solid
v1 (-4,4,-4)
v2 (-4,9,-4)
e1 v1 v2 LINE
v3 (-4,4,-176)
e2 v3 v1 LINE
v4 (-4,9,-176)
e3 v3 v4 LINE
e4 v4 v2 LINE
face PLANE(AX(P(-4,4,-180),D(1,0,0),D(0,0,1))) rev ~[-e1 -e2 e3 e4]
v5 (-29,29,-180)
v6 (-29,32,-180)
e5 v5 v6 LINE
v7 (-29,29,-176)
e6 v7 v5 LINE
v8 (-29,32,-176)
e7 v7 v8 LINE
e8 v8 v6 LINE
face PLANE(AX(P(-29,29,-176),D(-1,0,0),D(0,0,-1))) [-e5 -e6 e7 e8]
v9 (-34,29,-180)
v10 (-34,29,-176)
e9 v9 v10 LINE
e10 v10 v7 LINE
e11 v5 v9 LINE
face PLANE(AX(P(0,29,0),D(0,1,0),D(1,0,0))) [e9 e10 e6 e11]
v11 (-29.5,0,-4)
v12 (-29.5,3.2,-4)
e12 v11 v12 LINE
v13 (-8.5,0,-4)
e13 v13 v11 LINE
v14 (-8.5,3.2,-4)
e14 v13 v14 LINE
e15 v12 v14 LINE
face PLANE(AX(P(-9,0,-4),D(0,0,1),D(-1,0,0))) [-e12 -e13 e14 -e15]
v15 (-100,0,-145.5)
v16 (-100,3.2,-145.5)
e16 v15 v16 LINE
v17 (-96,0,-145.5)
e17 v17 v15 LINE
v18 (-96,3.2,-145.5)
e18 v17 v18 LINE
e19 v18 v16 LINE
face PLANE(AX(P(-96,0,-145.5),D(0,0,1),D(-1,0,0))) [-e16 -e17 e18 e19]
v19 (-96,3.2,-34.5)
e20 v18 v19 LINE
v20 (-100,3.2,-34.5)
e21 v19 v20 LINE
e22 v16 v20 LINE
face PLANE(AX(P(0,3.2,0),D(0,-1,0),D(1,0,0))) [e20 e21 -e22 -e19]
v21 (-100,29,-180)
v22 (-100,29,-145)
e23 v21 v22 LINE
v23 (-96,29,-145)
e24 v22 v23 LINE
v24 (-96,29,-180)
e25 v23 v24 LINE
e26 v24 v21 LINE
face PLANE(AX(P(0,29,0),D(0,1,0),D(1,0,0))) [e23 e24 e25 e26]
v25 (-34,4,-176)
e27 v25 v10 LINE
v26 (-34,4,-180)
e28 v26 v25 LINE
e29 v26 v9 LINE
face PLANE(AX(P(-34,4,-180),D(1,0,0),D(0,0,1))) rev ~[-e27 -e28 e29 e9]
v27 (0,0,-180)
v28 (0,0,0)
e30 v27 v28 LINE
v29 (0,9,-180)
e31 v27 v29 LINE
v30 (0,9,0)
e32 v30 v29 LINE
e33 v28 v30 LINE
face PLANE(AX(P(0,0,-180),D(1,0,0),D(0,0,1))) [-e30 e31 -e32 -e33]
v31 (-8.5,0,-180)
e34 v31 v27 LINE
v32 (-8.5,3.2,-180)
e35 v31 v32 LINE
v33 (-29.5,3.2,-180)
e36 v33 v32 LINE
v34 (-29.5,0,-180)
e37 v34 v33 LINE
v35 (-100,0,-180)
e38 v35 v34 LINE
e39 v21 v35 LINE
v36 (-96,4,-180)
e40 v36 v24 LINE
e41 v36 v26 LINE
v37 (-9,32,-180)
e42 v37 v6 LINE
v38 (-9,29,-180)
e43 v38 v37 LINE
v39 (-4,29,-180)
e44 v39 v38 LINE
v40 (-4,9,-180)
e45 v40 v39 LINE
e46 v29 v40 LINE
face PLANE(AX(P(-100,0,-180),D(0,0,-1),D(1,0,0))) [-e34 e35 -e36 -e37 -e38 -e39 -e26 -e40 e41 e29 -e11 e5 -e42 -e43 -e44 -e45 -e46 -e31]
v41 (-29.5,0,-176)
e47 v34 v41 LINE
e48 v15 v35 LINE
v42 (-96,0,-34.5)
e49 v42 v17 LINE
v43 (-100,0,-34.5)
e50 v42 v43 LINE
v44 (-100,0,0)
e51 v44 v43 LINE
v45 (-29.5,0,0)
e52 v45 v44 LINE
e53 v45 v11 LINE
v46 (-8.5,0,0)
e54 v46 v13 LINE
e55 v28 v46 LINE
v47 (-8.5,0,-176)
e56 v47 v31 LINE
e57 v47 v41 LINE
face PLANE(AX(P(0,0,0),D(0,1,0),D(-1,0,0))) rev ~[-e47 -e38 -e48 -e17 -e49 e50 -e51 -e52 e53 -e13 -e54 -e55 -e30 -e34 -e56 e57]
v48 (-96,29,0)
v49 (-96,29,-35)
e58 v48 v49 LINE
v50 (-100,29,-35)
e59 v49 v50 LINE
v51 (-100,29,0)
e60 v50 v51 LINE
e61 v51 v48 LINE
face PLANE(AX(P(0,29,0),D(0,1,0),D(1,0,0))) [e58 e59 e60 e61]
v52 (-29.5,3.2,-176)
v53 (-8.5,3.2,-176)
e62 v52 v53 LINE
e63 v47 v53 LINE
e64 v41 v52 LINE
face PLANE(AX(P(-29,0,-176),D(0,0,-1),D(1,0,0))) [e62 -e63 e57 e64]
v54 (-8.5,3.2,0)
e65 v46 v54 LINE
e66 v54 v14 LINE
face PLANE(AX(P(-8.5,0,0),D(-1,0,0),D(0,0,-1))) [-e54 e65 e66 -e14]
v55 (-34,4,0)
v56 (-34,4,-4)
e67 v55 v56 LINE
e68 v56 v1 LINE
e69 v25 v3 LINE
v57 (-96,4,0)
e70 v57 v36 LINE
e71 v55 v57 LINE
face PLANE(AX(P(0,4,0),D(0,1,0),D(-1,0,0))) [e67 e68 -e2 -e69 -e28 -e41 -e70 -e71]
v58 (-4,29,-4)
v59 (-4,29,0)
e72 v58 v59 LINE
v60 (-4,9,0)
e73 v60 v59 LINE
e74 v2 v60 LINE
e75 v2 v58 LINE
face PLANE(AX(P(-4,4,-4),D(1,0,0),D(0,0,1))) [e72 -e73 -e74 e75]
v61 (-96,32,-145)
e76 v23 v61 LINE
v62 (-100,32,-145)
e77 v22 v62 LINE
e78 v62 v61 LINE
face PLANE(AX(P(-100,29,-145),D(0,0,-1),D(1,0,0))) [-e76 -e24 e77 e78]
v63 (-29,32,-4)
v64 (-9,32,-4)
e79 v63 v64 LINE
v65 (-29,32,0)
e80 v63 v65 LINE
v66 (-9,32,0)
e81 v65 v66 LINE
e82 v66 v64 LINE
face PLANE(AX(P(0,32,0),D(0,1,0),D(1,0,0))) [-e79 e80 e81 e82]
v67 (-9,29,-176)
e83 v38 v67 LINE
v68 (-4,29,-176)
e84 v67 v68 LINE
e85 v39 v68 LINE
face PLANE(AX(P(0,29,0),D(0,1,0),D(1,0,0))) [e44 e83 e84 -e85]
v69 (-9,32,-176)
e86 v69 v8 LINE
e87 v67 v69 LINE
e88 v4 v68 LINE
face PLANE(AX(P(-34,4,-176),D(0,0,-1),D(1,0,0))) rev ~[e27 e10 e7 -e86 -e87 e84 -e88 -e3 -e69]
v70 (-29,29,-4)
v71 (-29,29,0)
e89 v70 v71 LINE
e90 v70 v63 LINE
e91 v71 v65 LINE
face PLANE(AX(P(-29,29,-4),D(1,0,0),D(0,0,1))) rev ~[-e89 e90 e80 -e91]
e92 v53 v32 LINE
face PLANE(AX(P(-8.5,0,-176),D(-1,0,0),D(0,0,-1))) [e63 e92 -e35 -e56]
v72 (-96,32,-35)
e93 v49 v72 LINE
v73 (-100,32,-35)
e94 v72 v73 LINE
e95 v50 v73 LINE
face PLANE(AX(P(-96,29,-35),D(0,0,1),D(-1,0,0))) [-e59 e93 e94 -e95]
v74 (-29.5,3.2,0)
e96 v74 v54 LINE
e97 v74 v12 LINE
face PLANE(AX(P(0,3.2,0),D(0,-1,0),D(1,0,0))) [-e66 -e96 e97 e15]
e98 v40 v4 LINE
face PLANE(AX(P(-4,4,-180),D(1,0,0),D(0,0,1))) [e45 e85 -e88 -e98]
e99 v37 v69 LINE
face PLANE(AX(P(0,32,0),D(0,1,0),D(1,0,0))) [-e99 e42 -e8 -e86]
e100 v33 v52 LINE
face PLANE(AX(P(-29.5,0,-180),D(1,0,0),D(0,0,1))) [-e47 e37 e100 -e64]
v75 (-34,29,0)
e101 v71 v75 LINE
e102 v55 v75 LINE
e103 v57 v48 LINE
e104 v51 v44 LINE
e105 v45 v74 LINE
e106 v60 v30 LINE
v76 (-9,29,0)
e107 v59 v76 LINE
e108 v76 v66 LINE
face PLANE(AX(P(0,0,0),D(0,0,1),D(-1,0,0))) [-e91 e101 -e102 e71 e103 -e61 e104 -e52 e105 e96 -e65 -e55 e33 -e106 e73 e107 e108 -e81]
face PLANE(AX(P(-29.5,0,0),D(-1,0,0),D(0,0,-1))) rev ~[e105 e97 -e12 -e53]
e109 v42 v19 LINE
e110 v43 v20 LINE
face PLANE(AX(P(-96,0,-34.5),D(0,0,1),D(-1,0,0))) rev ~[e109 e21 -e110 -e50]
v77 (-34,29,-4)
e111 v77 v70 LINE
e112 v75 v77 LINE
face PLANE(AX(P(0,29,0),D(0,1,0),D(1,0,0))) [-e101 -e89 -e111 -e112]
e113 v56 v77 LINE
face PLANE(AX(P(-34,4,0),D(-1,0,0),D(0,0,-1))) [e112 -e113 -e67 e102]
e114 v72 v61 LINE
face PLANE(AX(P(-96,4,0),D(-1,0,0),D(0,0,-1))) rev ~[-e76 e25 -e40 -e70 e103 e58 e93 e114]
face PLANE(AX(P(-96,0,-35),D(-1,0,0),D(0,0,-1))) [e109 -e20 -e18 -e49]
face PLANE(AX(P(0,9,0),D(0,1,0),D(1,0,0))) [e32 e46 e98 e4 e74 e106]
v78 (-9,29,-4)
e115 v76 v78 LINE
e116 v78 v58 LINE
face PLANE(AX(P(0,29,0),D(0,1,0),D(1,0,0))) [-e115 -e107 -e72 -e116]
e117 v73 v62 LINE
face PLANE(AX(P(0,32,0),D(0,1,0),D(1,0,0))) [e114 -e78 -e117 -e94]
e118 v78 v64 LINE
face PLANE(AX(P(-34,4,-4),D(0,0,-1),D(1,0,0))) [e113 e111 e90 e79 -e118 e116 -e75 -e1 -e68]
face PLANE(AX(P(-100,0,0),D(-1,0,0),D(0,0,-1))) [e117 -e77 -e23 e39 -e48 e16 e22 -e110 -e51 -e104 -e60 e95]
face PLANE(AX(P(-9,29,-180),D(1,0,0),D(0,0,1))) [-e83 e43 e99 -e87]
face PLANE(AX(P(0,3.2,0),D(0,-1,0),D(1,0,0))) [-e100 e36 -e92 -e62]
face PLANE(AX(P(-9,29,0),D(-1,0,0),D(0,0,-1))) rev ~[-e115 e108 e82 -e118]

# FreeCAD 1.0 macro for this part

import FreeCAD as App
import Part
import Sketcher
from FreeCAD import Vector
Q = App.Units.Quantity


def add_polygon(sketch, points):
    """Adds a closed chain of lines whose ends are joined by coincident constraints."""
    first, n = sketch.GeometryCount, len(points)
    for a, b in zip(points, points[1:] + points[:1]):
        sketch.addGeometry(Part.LineSegment(App.Vector(*a, 0), App.Vector(*b, 0)), False)
    for i in range(n):
        sketch.addConstraint(Sketcher.Constraint("Coincident", first + i, 2, first + (i + 1) % n, 1))

doc = App.newDocument("Part")
body = doc.addObject("PartDesign::Body", "Body")

sketch1 = body.newObject("Sketcher::SketchObject", "Sketch")
sketch1.AttachmentSupport = (doc.getObject("XZ_Plane"), [""])
sketch1.MapMode = "FlatFace"
add_polygon(sketch1, [(-100, 0), (0, 0), (0, -180), (-100, -180)])
sketch1.addConstraint([
    Sketcher.Constraint("Horizontal", 0),
    Sketcher.Constraint("Vertical", 1),
    Sketcher.Constraint("Horizontal", 2),
    Sketcher.Constraint("Vertical", 3),
    Sketcher.Constraint("Coincident", 0, 2, -1, 1),
    Sketcher.Constraint("DistanceX", 0, 1, 0, 2, Q("100 mm")),
    Sketcher.Constraint("DistanceY", 1, 2, 1, 1, Q("180 mm")),
])
pad1 = body.newObject("PartDesign::Pad", "Pad")
pad1.Profile = sketch1
pad1.Length = 4
pad1.Reversed = True

sketch2 = body.newObject("Sketcher::SketchObject", "Sketch001")
sketch2.AttachmentSupport = (doc.getObject("XZ_Plane"), [""])
sketch2.MapMode = "FlatFace"
sketch2.AttachmentOffset = App.Placement(Vector(0, 0, -4), App.Rotation())
add_polygon(sketch2, [(0, -180), (-4, -180), (-4, 0), (0, 0)])
sketch2.addConstraint([
    Sketcher.Constraint("Horizontal", 0),
    Sketcher.Constraint("Vertical", 1),
    Sketcher.Constraint("Horizontal", 2),
    Sketcher.Constraint("Vertical", 3),
    Sketcher.Constraint("Coincident", 2, 2, -1, 1),
    Sketcher.Constraint("DistanceX", 0, 2, 0, 1, Q("4 mm")),
    Sketcher.Constraint("DistanceY", 1, 1, 1, 2, Q("180 mm")),
])
pad2 = body.newObject("PartDesign::Pad", "Pad001")
pad2.Profile = sketch2
pad2.Length = 5
pad2.Reversed = True

sketch3 = body.newObject("Sketcher::SketchObject", "Sketch002")
sketch3.AttachmentSupport = (doc.getObject("XZ_Plane"), [""])
sketch3.MapMode = "FlatFace"
sketch3.AttachmentOffset = App.Placement(Vector(0, 0, -4), App.Rotation())
add_polygon(sketch3, [(-4, -176), (-4, -180), (-34, -180), (-34, -176)])
add_polygon(sketch3, [(-4, 0), (-4, -4), (-34, -4), (-34, 0)])
add_polygon(sketch3, [(-96, 0), (-96, -180), (-100, -180), (-100, 0)])
sketch3.addConstraint([
    Sketcher.Constraint("Vertical", 0),
    Sketcher.Constraint("Horizontal", 1),
    Sketcher.Constraint("Vertical", 2),
    Sketcher.Constraint("Horizontal", 3),
    Sketcher.Constraint("Vertical", 4),
    Sketcher.Constraint("Horizontal", 5),
    Sketcher.Constraint("Vertical", 6),
    Sketcher.Constraint("Horizontal", 7),
    Sketcher.Constraint("Vertical", 8),
    Sketcher.Constraint("Horizontal", 9),
    Sketcher.Constraint("Vertical", 10),
    Sketcher.Constraint("Horizontal", 11),
    Sketcher.Constraint("PointOnObject", 6, 2, -1),
    Sketcher.Constraint("PointOnObject", 10, 2, -1),
    Sketcher.Constraint("Horizontal", 1, 2, 8, 2),
    Sketcher.Constraint("Vertical", 3, 2, 4, 2),
    Sketcher.Constraint("Vertical", 2, 2, 5, 2),
    Sketcher.Constraint("Equal", 11, 0),
    Sketcher.Constraint("Equal", 2, 4),
    Sketcher.Constraint("DistanceX", 1, 2, 1, 1, Q("30 mm")),
    Sketcher.Constraint("DistanceX", 9, 2, 9, 1, Q("4 mm")),
    Sketcher.Constraint("DistanceX", 0, 2, -1, 1, Q("4 mm")),
    Sketcher.Constraint("DistanceY", 8, 2, 8, 1, Q("180 mm")),
    Sketcher.Constraint("DistanceX", 8, 2, -1, 1, Q("96 mm")),
])
pad3 = body.newObject("PartDesign::Pad", "Pad002")
pad3.Profile = sketch3
pad3.Length = 25
pad3.Reversed = True

sketch4 = body.newObject("Sketcher::SketchObject", "Sketch003")
sketch4.AttachmentSupport = (doc.getObject("XZ_Plane"), [""])
sketch4.MapMode = "FlatFace"
sketch4.AttachmentOffset = App.Placement(Vector(0, 0, -29), App.Rotation())
add_polygon(sketch4, [(-100, -145), (-100, -35), (-96, -35), (-96, -145)])
add_polygon(sketch4, [(-9, -180), (-29, -180), (-29, -176), (-9, -176)])
add_polygon(sketch4, [(-29, -4), (-29, 0), (-9, 0), (-9, -4)])
sketch4.addConstraint([
    Sketcher.Constraint("Vertical", 0),
    Sketcher.Constraint("Horizontal", 1),
    Sketcher.Constraint("Vertical", 2),
    Sketcher.Constraint("Horizontal", 3),
    Sketcher.Constraint("Horizontal", 4),
    Sketcher.Constraint("Vertical", 5),
    Sketcher.Constraint("Horizontal", 6),
    Sketcher.Constraint("Vertical", 7),
    Sketcher.Constraint("Vertical", 8),
    Sketcher.Constraint("Horizontal", 9),
    Sketcher.Constraint("Vertical", 10),
    Sketcher.Constraint("Horizontal", 11),
    Sketcher.Constraint("PointOnObject", 8, 2, -1),
    Sketcher.Constraint("Vertical", 5, 2, 8, 2),
    Sketcher.Constraint("Vertical", 7, 2, 9, 2),
    Sketcher.Constraint("Equal", 3, 5),
    Sketcher.Constraint("Equal", 7, 8),
    Sketcher.Constraint("DistanceX", 4, 2, 4, 1, Q("20 mm")),
    Sketcher.Constraint("DistanceY", 0, 1, 0, 2, Q("110 mm")),
    Sketcher.Constraint("DistanceX", 1, 1, 1, 2, Q("4 mm")),
    Sketcher.Constraint("DistanceX", 0, 2, -1, 1, Q("100 mm")),
    Sketcher.Constraint("DistanceY", 0, 2, -1, 1, Q("35 mm")),
    Sketcher.Constraint("DistanceX", 4, 2, -1, 1, Q("29 mm")),
    Sketcher.Constraint("DistanceY", 4, 2, -1, 1, Q("180 mm")),
])
pad4 = body.newObject("PartDesign::Pad", "Pad003")
pad4.Profile = sketch4
pad4.Length = 3
pad4.Reversed = True

sketch5 = body.newObject("Sketcher::SketchObject", "Sketch004")
sketch5.AttachmentSupport = (doc.getObject("XZ_Plane"), [""])
sketch5.MapMode = "FlatFace"
add_polygon(sketch5, [(-8.5, -4), (-8.5, 0), (-29.5, 0), (-29.5, -4)])
add_polygon(sketch5, [(-8.5, -180), (-8.5, -176), (-29.5, -176), (-29.5, -180)])
add_polygon(sketch5, [(-96, -34.5), (-100, -34.5), (-100, -145.5), (-96, -145.5)])
sketch5.addConstraint([
    Sketcher.Constraint("Vertical", 0),
    Sketcher.Constraint("Horizontal", 1),
    Sketcher.Constraint("Vertical", 2),
    Sketcher.Constraint("Horizontal", 3),
    Sketcher.Constraint("Vertical", 4),
    Sketcher.Constraint("Horizontal", 5),
    Sketcher.Constraint("Vertical", 6),
    Sketcher.Constraint("Horizontal", 7),
    Sketcher.Constraint("Horizontal", 8),
    Sketcher.Constraint("Vertical", 9),
    Sketcher.Constraint("Horizontal", 10),
    Sketcher.Constraint("Vertical", 11),
    Sketcher.Constraint("PointOnObject", 0, 2, -1),
    Sketcher.Constraint("Vertical", 3, 2, 4, 2),
    Sketcher.Constraint("Vertical", 2, 2, 5, 2),
    Sketcher.Constraint("Equal", 10, 0),
    Sketcher.Constraint("Equal", 2, 4),
    Sketcher.Constraint("DistanceX", 1, 2, 1, 1, Q("21 mm")),
    Sketcher.Constraint("DistanceX", 8, 2, 8, 1, Q("4 mm")),
    Sketcher.Constraint("DistanceY", 9, 2, 9, 1, Q("111 mm")),
    Sketcher.Constraint("DistanceY", 4, 2, -1, 1, Q("176 mm")),
    Sketcher.Constraint("DistanceX", 8, 2, -1, 1, Q("100 mm")),
    Sketcher.Constraint("DistanceX", 0, 2, -1, 1, Q("8.5 mm")),
    Sketcher.Constraint("DistanceY", 8, 2, -1, 1, Q("34.5 mm")),
])
pocket1 = body.newObject("PartDesign::Pocket", "Pocket")
pocket1.Profile = sketch5
pocket1.Length = 3.2

doc.recompute()
